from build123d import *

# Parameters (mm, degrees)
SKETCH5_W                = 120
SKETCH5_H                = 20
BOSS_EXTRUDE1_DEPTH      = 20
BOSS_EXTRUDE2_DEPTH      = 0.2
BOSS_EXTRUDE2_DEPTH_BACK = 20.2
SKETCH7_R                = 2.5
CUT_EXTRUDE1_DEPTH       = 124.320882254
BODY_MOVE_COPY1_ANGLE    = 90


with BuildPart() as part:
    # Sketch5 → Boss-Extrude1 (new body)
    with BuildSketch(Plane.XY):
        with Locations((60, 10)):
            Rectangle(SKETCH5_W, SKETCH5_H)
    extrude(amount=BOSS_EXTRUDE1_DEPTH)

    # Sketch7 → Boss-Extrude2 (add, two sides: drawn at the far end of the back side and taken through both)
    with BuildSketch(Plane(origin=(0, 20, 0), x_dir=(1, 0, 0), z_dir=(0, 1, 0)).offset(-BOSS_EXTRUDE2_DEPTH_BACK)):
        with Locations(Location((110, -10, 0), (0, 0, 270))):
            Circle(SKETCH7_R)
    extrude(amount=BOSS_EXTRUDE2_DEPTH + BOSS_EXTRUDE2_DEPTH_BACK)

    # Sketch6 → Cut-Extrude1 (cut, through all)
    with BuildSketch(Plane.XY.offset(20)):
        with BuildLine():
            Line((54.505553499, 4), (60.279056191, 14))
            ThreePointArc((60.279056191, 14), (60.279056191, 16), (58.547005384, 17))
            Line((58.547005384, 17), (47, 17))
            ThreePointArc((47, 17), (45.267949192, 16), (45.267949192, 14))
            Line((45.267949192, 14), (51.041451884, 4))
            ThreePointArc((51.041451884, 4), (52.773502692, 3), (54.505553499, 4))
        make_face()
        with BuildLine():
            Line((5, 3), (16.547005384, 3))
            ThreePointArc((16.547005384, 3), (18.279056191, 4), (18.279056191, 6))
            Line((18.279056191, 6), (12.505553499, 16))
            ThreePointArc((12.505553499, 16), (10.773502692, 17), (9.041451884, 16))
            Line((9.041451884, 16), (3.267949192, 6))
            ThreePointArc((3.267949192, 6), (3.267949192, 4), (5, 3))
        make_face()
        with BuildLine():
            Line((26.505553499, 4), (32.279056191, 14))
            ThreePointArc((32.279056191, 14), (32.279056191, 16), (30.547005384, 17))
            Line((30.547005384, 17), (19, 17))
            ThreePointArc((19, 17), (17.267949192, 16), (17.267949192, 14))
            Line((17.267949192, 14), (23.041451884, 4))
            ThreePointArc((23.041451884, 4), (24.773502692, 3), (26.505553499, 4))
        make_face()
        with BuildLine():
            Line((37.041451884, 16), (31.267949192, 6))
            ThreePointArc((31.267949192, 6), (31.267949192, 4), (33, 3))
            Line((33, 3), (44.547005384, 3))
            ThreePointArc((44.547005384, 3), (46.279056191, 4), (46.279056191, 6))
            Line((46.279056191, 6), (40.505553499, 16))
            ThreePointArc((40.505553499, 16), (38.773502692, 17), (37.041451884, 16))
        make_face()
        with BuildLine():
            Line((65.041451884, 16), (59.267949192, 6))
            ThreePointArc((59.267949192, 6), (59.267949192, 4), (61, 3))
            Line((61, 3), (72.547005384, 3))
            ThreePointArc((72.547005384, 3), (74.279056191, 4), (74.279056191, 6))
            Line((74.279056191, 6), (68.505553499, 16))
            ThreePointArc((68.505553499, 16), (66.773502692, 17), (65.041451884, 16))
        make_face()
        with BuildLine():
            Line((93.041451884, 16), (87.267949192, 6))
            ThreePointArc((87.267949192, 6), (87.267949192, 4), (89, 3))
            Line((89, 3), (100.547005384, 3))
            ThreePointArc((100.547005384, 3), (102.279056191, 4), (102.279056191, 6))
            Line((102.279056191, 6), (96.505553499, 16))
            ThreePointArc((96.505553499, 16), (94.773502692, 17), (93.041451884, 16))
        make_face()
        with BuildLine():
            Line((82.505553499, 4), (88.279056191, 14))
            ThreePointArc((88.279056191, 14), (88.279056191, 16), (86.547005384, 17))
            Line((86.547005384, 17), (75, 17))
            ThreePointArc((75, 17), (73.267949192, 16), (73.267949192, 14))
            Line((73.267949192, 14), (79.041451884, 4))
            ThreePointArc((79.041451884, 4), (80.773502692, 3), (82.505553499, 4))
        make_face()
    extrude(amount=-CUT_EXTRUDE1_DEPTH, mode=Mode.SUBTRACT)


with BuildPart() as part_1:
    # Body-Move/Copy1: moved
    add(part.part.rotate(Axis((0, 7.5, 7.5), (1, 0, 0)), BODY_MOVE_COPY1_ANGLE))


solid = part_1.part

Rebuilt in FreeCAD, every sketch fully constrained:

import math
import FreeCAD as App
import Part
import Sketcher

V = App.Vector
Q = App.Units.Quantity


def add_polygon(sketch, points):
    """Adds a closed chain of lines whose ends are joined by coincident constraints."""
    first, n = sketch.GeometryCount, len(points)
    for a, b in zip(points, points[1:] + points[:1]):
        sketch.addGeometry(Part.LineSegment(App.Vector(*a, 0), App.Vector(*b, 0)), False)
    for i in range(n):
        sketch.addConstraint(Sketcher.Constraint("Coincident", first + i, 2, first + (i + 1) % n, 1))

doc = App.newDocument("Part")
params = doc.addObject("Spreadsheet::Sheet", "Params")
for row, (alias, value) in enumerate([
    ("sketch1_width", "120 mm"),
    ("sketch1_height", "20 mm"),
    ("pad1_length", "20 mm"),
    ("sketch2_diameter", "5 mm"),
    ("pad2_length", "0.2 mm"),
    ("pad2_length2", "20.2 mm"),
    ("sketch3_radius", "2 mm"),
], start=1):
    params.set(f"A{row}", alias)
    params.set(f"B{row}", "=" + value)
    params.setAlias(f"B{row}", alias)

body = doc.addObject("PartDesign::Body", "Body")

sketch1 = doc.addObject("Sketcher::SketchObject", "Sketch")
body.addObject(sketch1)
sketch1.AttachmentSupport = (doc.XY_Plane, [""])
sketch1.MapMode = "FlatFace"
add_polygon(sketch1, [(0, 20), (0, 0), (120, 0), (120, 20)])
sketch1.addConstraint([
    Sketcher.Constraint("Vertical", 0),
    Sketcher.Constraint("Horizontal", 1),
    Sketcher.Constraint("Vertical", 2),
    Sketcher.Constraint("Horizontal", 3),
    Sketcher.Constraint("Coincident", 0, 2, -1, 1),
    Sketcher.Constraint("DistanceX", 1, 1, 1, 2, Q("120 mm")),
    Sketcher.Constraint("DistanceY", 0, 2, 0, 1, Q("20 mm")),
])
sketch1.setExpression("Constraints[9]", "Params.sketch1_width")
sketch1.setExpression("Constraints[10]", "Params.sketch1_height")
pad1 = doc.addObject("PartDesign::Pad", "Pad")
body.addObject(pad1)
pad1.Profile = sketch1
pad1.setExpression("Length", "Params.pad1_length")

sketch2 = doc.addObject("Sketcher::SketchObject", "Sketch001")
body.addObject(sketch2)
sketch2.AttachmentSupport = (doc.XZ_Plane, [""])
sketch2.MapMode = "FlatFace"
sketch2.AttachmentOffset = App.Placement(V(0, 0, -20), App.Rotation())
sketch2.addGeometry(Part.Circle(V(110, 10, 0), V(0, 0, 1), 2.5), False)
sketch2.addConstraint([
    Sketcher.Constraint("Diameter", 0, Q("5 mm")),
    Sketcher.Constraint("DistanceX", -1, 1, 0, 3, Q("110 mm")),
    Sketcher.Constraint("DistanceY", -1, 1, 0, 3, Q("10 mm")),
])
sketch2.setExpression("Constraints[0]", "Params.sketch2_diameter")
pad2 = doc.addObject("PartDesign::Pad", "Pad001")
body.addObject(pad2)
pad2.Profile = sketch2
pad2.Type = "TwoLengths"
pad2.setExpression("Length", "Params.pad2_length")
pad2.setExpression("Length2", "Params.pad2_length2")
pad2.Reversed = True

sketch3 = doc.addObject("Sketcher::SketchObject", "Sketch002")
body.addObject(sketch3)
sketch3.AttachmentSupport = (doc.XY_Plane, [""])
sketch3.MapMode = "FlatFace"
sketch3.AttachmentOffset = App.Placement(V(0, 0, 20), App.Rotation())
sketch3.addGeometry([
    Part.LineSegment(V(54.5, 4, 0), V(60.3, 14, 0)),
    Part.ArcOfCircle(Part.Circle(V(58.5, 15, 0), V(0, 0, 1), 2), math.radians(-30), math.radians(90)),
    Part.LineSegment(V(58.5, 17, 0), V(47, 17, 0)),
    Part.ArcOfCircle(Part.Circle(V(47, 15, 0), V(0, 0, 1), 2), math.radians(90), math.radians(210)),
    Part.LineSegment(V(45.3, 14, 0), V(51, 4, 0)),
    Part.ArcOfCircle(Part.Circle(V(52.8, 5, 0), V(0, 0, 1), 2), math.radians(-150), math.radians(-30)),
    Part.LineSegment(V(5, 3, 0), V(16.5, 3, 0)),
    Part.ArcOfCircle(Part.Circle(V(16.5, 5, 0), V(0, 0, 1), 2), math.radians(-90), math.radians(30)),
    Part.LineSegment(V(18.3, 6, 0), V(12.5, 16, 0)),
    Part.ArcOfCircle(Part.Circle(V(10.8, 15, 0), V(0, 0, 1), 2), math.radians(30), math.radians(150)),
    Part.LineSegment(V(9, 16, 0), V(3.3, 6, 0)),
    Part.ArcOfCircle(Part.Circle(V(5, 5, 0), V(0, 0, 1), 2), math.radians(150), math.radians(270)),
    Part.LineSegment(V(26.5, 4, 0), V(32.3, 14, 0)),
    Part.ArcOfCircle(Part.Circle(V(30.5, 15, 0), V(0, 0, 1), 2), math.radians(-30), math.radians(90)),
    Part.LineSegment(V(30.5, 17, 0), V(19, 17, 0)),
    Part.ArcOfCircle(Part.Circle(V(19, 15, 0), V(0, 0, 1), 2), math.radians(90), math.radians(210)),
    Part.LineSegment(V(17.3, 14, 0), V(23, 4, 0)),
    Part.ArcOfCircle(Part.Circle(V(24.8, 5, 0), V(0, 0, 1), 2), math.radians(-150), math.radians(-30)),
    Part.LineSegment(V(37, 16, 0), V(31.3, 6, 0)),
    Part.ArcOfCircle(Part.Circle(V(33, 5, 0), V(0, 0, 1), 2), math.radians(150), math.radians(270)),
    Part.LineSegment(V(33, 3, 0), V(44.5, 3, 0)),
    Part.ArcOfCircle(Part.Circle(V(44.5, 5, 0), V(0, 0, 1), 2), math.radians(-90), math.radians(30)),
    Part.LineSegment(V(46.3, 6, 0), V(40.5, 16, 0)),
    Part.ArcOfCircle(Part.Circle(V(38.8, 15, 0), V(0, 0, 1), 2), math.radians(30), math.radians(150)),
    Part.LineSegment(V(65, 16, 0), V(59.3, 6, 0)),
    Part.ArcOfCircle(Part.Circle(V(61, 5, 0), V(0, 0, 1), 2), math.radians(150), math.radians(270)),
    Part.LineSegment(V(61, 3, 0), V(72.5, 3, 0)),
    Part.ArcOfCircle(Part.Circle(V(72.5, 5, 0), V(0, 0, 1), 2), math.radians(-90), math.radians(30)),
    Part.LineSegment(V(74.3, 6, 0), V(68.5, 16, 0)),
    Part.ArcOfCircle(Part.Circle(V(66.8, 15, 0), V(0, 0, 1), 2), math.radians(30), math.radians(150)),
    Part.LineSegment(V(93, 16, 0), V(87.3, 6, 0)),
    Part.ArcOfCircle(Part.Circle(V(89, 5, 0), V(0, 0, 1), 2), math.radians(150), math.radians(270)),
    Part.LineSegment(V(89, 3, 0), V(100.5, 3, 0)),
    Part.ArcOfCircle(Part.Circle(V(100.5, 5, 0), V(0, 0, 1), 2), math.radians(-90), math.radians(30)),
    Part.LineSegment(V(102.3, 6, 0), V(96.5, 16, 0)),
    Part.ArcOfCircle(Part.Circle(V(94.8, 15, 0), V(0, 0, 1), 2), math.radians(30), math.radians(150)),
    Part.LineSegment(V(82.5, 4, 0), V(88.3, 14, 0)),
    Part.ArcOfCircle(Part.Circle(V(86.5, 15, 0), V(0, 0, 1), 2), math.radians(-30), math.radians(90)),
    Part.LineSegment(V(86.5, 17, 0), V(75, 17, 0)),
    Part.ArcOfCircle(Part.Circle(V(75, 15, 0), V(0, 0, 1), 2), math.radians(90), math.radians(210)),
    Part.LineSegment(V(73.3, 14, 0), V(79, 4, 0)),
    Part.ArcOfCircle(Part.Circle(V(80.8, 5, 0), V(0, 0, 1), 2), math.radians(-150), math.radians(-30)),
], False)
sketch3.addConstraint([
    Sketcher.Constraint("Tangent", 0, 2, 1, 1),
    Sketcher.Constraint("Tangent", 1, 2, 2, 1),
    Sketcher.Constraint("Tangent", 2, 2, 3, 1),
    Sketcher.Constraint("Tangent", 3, 2, 4, 1),
    Sketcher.Constraint("Tangent", 4, 2, 5, 1),
    Sketcher.Constraint("Tangent", 5, 2, 0, 1),
    Sketcher.Constraint("Tangent", 6, 2, 7, 1),
    Sketcher.Constraint("Tangent", 7, 2, 8, 1),
    Sketcher.Constraint("Tangent", 8, 2, 9, 1),
    Sketcher.Constraint("Tangent", 9, 2, 10, 1),
    Sketcher.Constraint("Tangent", 10, 2, 11, 1),
    Sketcher.Constraint("Tangent", 11, 2, 6, 1),
    Sketcher.Constraint("Tangent", 12, 2, 13, 1),
    Sketcher.Constraint("Tangent", 13, 2, 14, 1),
    Sketcher.Constraint("Tangent", 14, 2, 15, 1),
    Sketcher.Constraint("Tangent", 15, 2, 16, 1),
    Sketcher.Constraint("Tangent", 16, 2, 17, 1),
    Sketcher.Constraint("Tangent", 17, 2, 12, 1),
    Sketcher.Constraint("Tangent", 18, 2, 19, 1),
    Sketcher.Constraint("Tangent", 19, 2, 20, 1),
    Sketcher.Constraint("Tangent", 20, 2, 21, 1),
    Sketcher.Constraint("Tangent", 21, 2, 22, 1),
    Sketcher.Constraint("Tangent", 22, 2, 23, 1),
    Sketcher.Constraint("Tangent", 23, 2, 18, 1),
    Sketcher.Constraint("Tangent", 24, 2, 25, 1),
    Sketcher.Constraint("Tangent", 25, 2, 26, 1),
    Sketcher.Constraint("Tangent", 26, 2, 27, 1),
    Sketcher.Constraint("Tangent", 27, 2, 28, 1),
    Sketcher.Constraint("Tangent", 28, 2, 29, 1),
    Sketcher.Constraint("Tangent", 29, 2, 24, 1),
    Sketcher.Constraint("Tangent", 30, 2, 31, 1),
    Sketcher.Constraint("Tangent", 31, 2, 32, 1),
    Sketcher.Constraint("Tangent", 32, 2, 33, 1),
    Sketcher.Constraint("Tangent", 33, 2, 34, 1),
    Sketcher.Constraint("Tangent", 34, 2, 35, 1),
    Sketcher.Constraint("Tangent", 35, 2, 30, 1),
    Sketcher.Constraint("Tangent", 36, 2, 37, 1),
    Sketcher.Constraint("Tangent", 37, 2, 38, 1),
    Sketcher.Constraint("Tangent", 38, 2, 39, 1),
    Sketcher.Constraint("Tangent", 39, 2, 40, 1),
    Sketcher.Constraint("Tangent", 40, 2, 41, 1),
    Sketcher.Constraint("Tangent", 41, 2, 36, 1),
    Sketcher.Constraint("Horizontal", 2),
    Sketcher.Constraint("Horizontal", 6),
    Sketcher.Constraint("Horizontal", 14),
    Sketcher.Constraint("Horizontal", 20),
    Sketcher.Constraint("Horizontal", 26),
    Sketcher.Constraint("Horizontal", 32),
    Sketcher.Constraint("Horizontal", 38),
    Sketcher.Constraint("Equal", 1, 3),
    Sketcher.Constraint("Equal", 3, 5),
    Sketcher.Constraint("Equal", 5, 7),
    Sketcher.Constraint("Equal", 7, 9),
    Sketcher.Constraint("Equal", 9, 11),
    Sketcher.Constraint("Equal", 11, 13),
    Sketcher.Constraint("Equal", 13, 15),
    Sketcher.Constraint("Equal", 15, 17),
    Sketcher.Constraint("Equal", 17, 19),
    Sketcher.Constraint("Equal", 19, 21),
    Sketcher.Constraint("Equal", 21, 23),
    Sketcher.Constraint("Equal", 23, 25),
    Sketcher.Constraint("Equal", 25, 27),
    Sketcher.Constraint("Equal", 27, 29),
    Sketcher.Constraint("Equal", 29, 31),
    Sketcher.Constraint("Equal", 31, 33),
    Sketcher.Constraint("Equal", 33, 35),
    Sketcher.Constraint("Equal", 35, 37),
    Sketcher.Constraint("Equal", 37, 39),
    Sketcher.Constraint("Equal", 39, 41),
    Sketcher.Constraint("Parallel", 4, 8),
    Sketcher.Constraint("Parallel", 0, 10),
    Sketcher.Constraint("Parallel", 10, 12),
    Sketcher.Constraint("Parallel", 8, 16),
    Sketcher.Constraint("Parallel", 12, 18),
    Sketcher.Constraint("Parallel", 16, 22),
    Sketcher.Constraint("Parallel", 18, 24),
    Sketcher.Constraint("Parallel", 22, 28),
    Sketcher.Constraint("Parallel", 24, 30),
    Sketcher.Constraint("Parallel", 28, 34),
    Sketcher.Constraint("Parallel", 30, 36),
    Sketcher.Constraint("Parallel", 34, 40),
    Sketcher.Constraint("Horizontal", 5, 3, 7, 3),
    Sketcher.Constraint("Horizontal", 3, 3, 9, 3),
    Sketcher.Constraint("Horizontal", 9, 3, 13, 3),
    Sketcher.Constraint("Horizontal", 11, 3, 17, 3),
    Sketcher.Constraint("Horizontal", 17, 3, 19, 3),
    Sketcher.Constraint("Horizontal", 15, 3, 23, 3),
    Sketcher.Constraint("Horizontal", 21, 3, 25, 3),
    Sketcher.Constraint("Horizontal", 23, 3, 29, 3),
    Sketcher.Constraint("Horizontal", 27, 3, 31, 3),
    Sketcher.Constraint("Horizontal", 29, 3, 35, 3),
    Sketcher.Constraint("Horizontal", 35, 3, 37, 3),
    Sketcher.Constraint("Horizontal", 33, 3, 41, 3),
    Sketcher.Constraint("Horizontal", 0, 2, 3, 2),
    Sketcher.Constraint("Radius", 1, Q("2 mm")),
    Sketcher.Constraint("Angle", 0, Q("60 deg")),
    Sketcher.Constraint("DistanceY", -1, 1, 1, 3, Q("15 mm")),
    Sketcher.Constraint("DistanceX", -1, 1, 3, 3, Q("47 mm")),
    Sketcher.Constraint("DistanceY", -1, 1, 5, 3, Q("5 mm")),
    Sketcher.Constraint("DistanceX", -1, 1, 11, 3, Q("5 mm")),
    Sketcher.Constraint("DistanceX", -1, 1, 15, 3, Q("19 mm")),
    Sketcher.Constraint("DistanceX", -1, 1, 19, 3, Q("33 mm")),
    Sketcher.Constraint("DistanceX", -1, 1, 25, 3, Q("61 mm")),
    Sketcher.Constraint("DistanceX", -1, 1, 31, 3, Q("89 mm")),
    Sketcher.Constraint("DistanceX", -1, 1, 39, 3, Q("75 mm")),
])
sketch3.setExpression("Constraints[94]", "Params.sketch3_radius")
pocket1 = doc.addObject("PartDesign::Pocket", "Pocket")
body.addObject(pocket1)
pocket1.Profile = sketch3
pocket1.Type = "ThroughAll"
body2 = doc.addObject("PartDesign::Body", "Body001")
doc.recompute()

body.Placement = App.Placement(V(0, 15, 0), App.Rotation(V(1, 0, 0), 90))
boolean = doc.addObject("PartDesign::Boolean", "Boolean")
body2.addObject(boolean)
boolean.Type = "Fuse"
boolean.addObjects([body])

doc.recompute()
